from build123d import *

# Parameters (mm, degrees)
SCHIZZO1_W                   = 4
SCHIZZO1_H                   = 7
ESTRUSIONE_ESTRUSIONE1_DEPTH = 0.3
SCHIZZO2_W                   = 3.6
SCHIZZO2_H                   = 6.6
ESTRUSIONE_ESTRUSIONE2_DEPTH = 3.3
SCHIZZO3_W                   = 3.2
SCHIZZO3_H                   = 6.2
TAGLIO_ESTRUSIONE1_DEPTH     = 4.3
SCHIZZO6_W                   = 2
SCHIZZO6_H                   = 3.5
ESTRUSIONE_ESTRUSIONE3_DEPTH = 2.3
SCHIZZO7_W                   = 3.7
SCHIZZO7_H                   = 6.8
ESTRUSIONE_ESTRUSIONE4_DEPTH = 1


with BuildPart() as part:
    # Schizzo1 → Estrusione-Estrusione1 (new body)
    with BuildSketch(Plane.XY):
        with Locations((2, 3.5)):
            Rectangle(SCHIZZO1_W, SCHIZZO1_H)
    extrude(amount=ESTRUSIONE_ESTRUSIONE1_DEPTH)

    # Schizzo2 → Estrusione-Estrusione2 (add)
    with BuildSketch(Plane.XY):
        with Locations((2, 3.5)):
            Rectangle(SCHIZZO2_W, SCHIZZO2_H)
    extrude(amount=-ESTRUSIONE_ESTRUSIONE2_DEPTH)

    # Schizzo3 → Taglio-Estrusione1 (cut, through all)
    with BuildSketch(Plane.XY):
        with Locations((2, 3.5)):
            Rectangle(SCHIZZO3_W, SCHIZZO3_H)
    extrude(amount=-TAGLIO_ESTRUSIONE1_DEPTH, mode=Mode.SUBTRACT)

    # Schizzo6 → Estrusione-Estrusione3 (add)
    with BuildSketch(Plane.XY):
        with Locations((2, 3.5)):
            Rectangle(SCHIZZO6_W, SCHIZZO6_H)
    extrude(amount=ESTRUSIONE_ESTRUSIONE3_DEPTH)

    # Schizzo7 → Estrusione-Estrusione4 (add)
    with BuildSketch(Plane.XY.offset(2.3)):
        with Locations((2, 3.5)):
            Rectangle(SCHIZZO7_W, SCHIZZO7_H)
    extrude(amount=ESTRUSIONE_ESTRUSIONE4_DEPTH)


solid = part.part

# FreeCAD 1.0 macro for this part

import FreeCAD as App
import Part
import Sketcher

doc = App.newDocument("Part")
body = doc.addObject("PartDesign::Body", "Body")

sketch1 = body.newObject("Sketcher::SketchObject", "Sketch")
sketch1.AttachmentSupport = (doc.getObject("XY_Plane"), [""])
sketch1.MapMode = "FlatFace"
sketch1.addGeometry([
    Part.LineSegment(App.Vector(0, 7, 0), App.Vector(0, 0, 0)),
    Part.LineSegment(App.Vector(0, 0, 0), App.Vector(4, 0, 0)),
    Part.LineSegment(App.Vector(4, 0, 0), App.Vector(4, 7, 0)),
    Part.LineSegment(App.Vector(4, 7, 0), App.Vector(0, 7, 0)),
], False)
sketch1.addConstraint([
    Sketcher.Constraint("Coincident", 0, 2, 1, 1),
    Sketcher.Constraint("Coincident", 1, 2, 2, 1),
    Sketcher.Constraint("Coincident", 2, 2, 3, 1),
    Sketcher.Constraint("Coincident", 3, 2, 0, 1),
    Sketcher.Constraint("Vertical", 0),
    Sketcher.Constraint("Horizontal", 1),
    Sketcher.Constraint("Vertical", 2),
    Sketcher.Constraint("Horizontal", 3),
    Sketcher.Constraint("Coincident", 0, 2, -1, 1),
    Sketcher.Constraint("DistanceX", 1, 1, 1, 2, 4.0),
    Sketcher.Constraint("DistanceY", 0, 2, 0, 1, 7.0),
])
pad1 = body.newObject("PartDesign::Pad", "Pad")
pad1.Profile = sketch1
pad1.Length = 0.3

sketch2 = body.newObject("Sketcher::SketchObject", "Sketch001")
sketch2.AttachmentSupport = (doc.getObject("XY_Plane"), [""])
sketch2.MapMode = "FlatFace"
sketch2.addGeometry([
    Part.LineSegment(App.Vector(0.2, 6.8, 0), App.Vector(0.2, 0.2, 0)),
    Part.LineSegment(App.Vector(0.2, 0.2, 0), App.Vector(3.8, 0.2, 0)),
    Part.LineSegment(App.Vector(3.8, 0.2, 0), App.Vector(3.8, 6.8, 0)),
    Part.LineSegment(App.Vector(3.8, 6.8, 0), App.Vector(0.2, 6.8, 0)),
], False)
sketch2.addConstraint([
    Sketcher.Constraint("Coincident", 0, 2, 1, 1),
    Sketcher.Constraint("Coincident", 1, 2, 2, 1),
    Sketcher.Constraint("Coincident", 2, 2, 3, 1),
    Sketcher.Constraint("Coincident", 3, 2, 0, 1),
    Sketcher.Constraint("Vertical", 0),
    Sketcher.Constraint("Horizontal", 1),
    Sketcher.Constraint("Vertical", 2),
    Sketcher.Constraint("Horizontal", 3),
    Sketcher.Constraint("DistanceX", 1, 1, 1, 2, 3.6),
    Sketcher.Constraint("DistanceY", 0, 2, 0, 1, 6.6),
    Sketcher.Constraint("DistanceX", -1, 1, 0, 2, 0.2),
    Sketcher.Constraint("DistanceY", -1, 1, 0, 2, 0.2),
])
pad2 = body.newObject("PartDesign::Pad", "Pad001")
pad2.Profile = sketch2
pad2.Length = 3.3
pad2.Reversed = True

sketch3 = body.newObject("Sketcher::SketchObject", "Sketch002")
sketch3.AttachmentSupport = (doc.getObject("XY_Plane"), [""])
sketch3.MapMode = "FlatFace"
sketch3.addGeometry([
    Part.LineSegment(App.Vector(0.4, 6.6, 0), App.Vector(0.4, 0.4, 0)),
    Part.LineSegment(App.Vector(0.4, 0.4, 0), App.Vector(3.6, 0.4, 0)),
    Part.LineSegment(App.Vector(3.6, 0.4, 0), App.Vector(3.6, 6.6, 0)),
    Part.LineSegment(App.Vector(3.6, 6.6, 0), App.Vector(0.4, 6.6, 0)),
], False)
sketch3.addConstraint([
    Sketcher.Constraint("Coincident", 0, 2, 1, 1),
    Sketcher.Constraint("Coincident", 1, 2, 2, 1),
    Sketcher.Constraint("Coincident", 2, 2, 3, 1),
    Sketcher.Constraint("Coincident", 3, 2, 0, 1),
    Sketcher.Constraint("Vertical", 0),
    Sketcher.Constraint("Horizontal", 1),
    Sketcher.Constraint("Vertical", 2),
    Sketcher.Constraint("Horizontal", 3),
    Sketcher.Constraint("DistanceX", 1, 1, 1, 2, 3.2),
    Sketcher.Constraint("DistanceY", 0, 2, 0, 1, 6.2),
    Sketcher.Constraint("DistanceX", -1, 1, 0, 2, 0.4),
    Sketcher.Constraint("DistanceY", -1, 1, 0, 2, 0.4),
])
pocket1 = body.newObject("PartDesign::Pocket", "Pocket")
pocket1.Profile = sketch3
pocket1.Type = "ThroughAll"

sketch4 = body.newObject("Sketcher::SketchObject", "Sketch003")
sketch4.AttachmentSupport = (doc.getObject("XY_Plane"), [""])
sketch4.MapMode = "FlatFace"
sketch4.addGeometry([
    Part.LineSegment(App.Vector(1, 5.2, 0), App.Vector(1, 1.8, 0)),
    Part.LineSegment(App.Vector(1, 1.8, 0), App.Vector(3, 1.8, 0)),
    Part.LineSegment(App.Vector(3, 1.8, 0), App.Vector(3, 5.2, 0)),
    Part.LineSegment(App.Vector(3, 5.2, 0), App.Vector(1, 5.2, 0)),
], False)
sketch4.addConstraint([
    Sketcher.Constraint("Coincident", 0, 2, 1, 1),
    Sketcher.Constraint("Coincident", 1, 2, 2, 1),
    Sketcher.Constraint("Coincident", 2, 2, 3, 1),
    Sketcher.Constraint("Coincident", 3, 2, 0, 1),
    Sketcher.Constraint("Vertical", 0),
    Sketcher.Constraint("Horizontal", 1),
    Sketcher.Constraint("Vertical", 2),
    Sketcher.Constraint("Horizontal", 3),
    Sketcher.Constraint("DistanceX", 1, 1, 1, 2, 2.0),
    Sketcher.Constraint("DistanceY", 0, 2, 0, 1, 3.5),
    Sketcher.Constraint("DistanceX", -1, 1, 0, 2, 1.0),
    Sketcher.Constraint("DistanceY", -1, 1, 0, 2, 1.75),
])
pad3 = body.newObject("PartDesign::Pad", "Pad002")
pad3.Profile = sketch4
pad3.Length = 2.3

sketch5 = body.newObject("Sketcher::SketchObject", "Sketch004")
sketch5.AttachmentSupport = (doc.getObject("XY_Plane"), [""])
sketch5.MapMode = "FlatFace"
sketch5.AttachmentOffset = App.Placement(App.Vector(0, 0, 2.3), App.Rotation())
sketch5.addGeometry([
    Part.LineSegment(App.Vector(0.1, 6.9, 0), App.Vector(0.1, 0.1, 0)),
    Part.LineSegment(App.Vector(0.1, 0.1, 0), App.Vector(3.9, 0.1, 0)),
    Part.LineSegment(App.Vector(3.9, 0.1, 0), App.Vector(3.9, 6.9, 0)),
    Part.LineSegment(App.Vector(3.9, 6.9, 0), App.Vector(0.1, 6.9, 0)),
], False)
sketch5.addConstraint([
    Sketcher.Constraint("Coincident", 0, 2, 1, 1),
    Sketcher.Constraint("Coincident", 1, 2, 2, 1),
    Sketcher.Constraint("Coincident", 2, 2, 3, 1),
    Sketcher.Constraint("Coincident", 3, 2, 0, 1),
    Sketcher.Constraint("Vertical", 0),
    Sketcher.Constraint("Horizontal", 1),
    Sketcher.Constraint("Vertical", 2),
    Sketcher.Constraint("Horizontal", 3),
    Sketcher.Constraint("DistanceX", 1, 1, 1, 2, 3.7),
    Sketcher.Constraint("DistanceY", 0, 2, 0, 1, 6.8),
    Sketcher.Constraint("DistanceY", -1, 1, 0, 2, 0.1),
    Sketcher.Constraint("DistanceX", -1, 1, 0, 2, 0.15),
])
pad4 = body.newObject("PartDesign::Pad", "Pad003")
pad4.Profile = sketch5
pad4.Length = 1

doc.recompute()
